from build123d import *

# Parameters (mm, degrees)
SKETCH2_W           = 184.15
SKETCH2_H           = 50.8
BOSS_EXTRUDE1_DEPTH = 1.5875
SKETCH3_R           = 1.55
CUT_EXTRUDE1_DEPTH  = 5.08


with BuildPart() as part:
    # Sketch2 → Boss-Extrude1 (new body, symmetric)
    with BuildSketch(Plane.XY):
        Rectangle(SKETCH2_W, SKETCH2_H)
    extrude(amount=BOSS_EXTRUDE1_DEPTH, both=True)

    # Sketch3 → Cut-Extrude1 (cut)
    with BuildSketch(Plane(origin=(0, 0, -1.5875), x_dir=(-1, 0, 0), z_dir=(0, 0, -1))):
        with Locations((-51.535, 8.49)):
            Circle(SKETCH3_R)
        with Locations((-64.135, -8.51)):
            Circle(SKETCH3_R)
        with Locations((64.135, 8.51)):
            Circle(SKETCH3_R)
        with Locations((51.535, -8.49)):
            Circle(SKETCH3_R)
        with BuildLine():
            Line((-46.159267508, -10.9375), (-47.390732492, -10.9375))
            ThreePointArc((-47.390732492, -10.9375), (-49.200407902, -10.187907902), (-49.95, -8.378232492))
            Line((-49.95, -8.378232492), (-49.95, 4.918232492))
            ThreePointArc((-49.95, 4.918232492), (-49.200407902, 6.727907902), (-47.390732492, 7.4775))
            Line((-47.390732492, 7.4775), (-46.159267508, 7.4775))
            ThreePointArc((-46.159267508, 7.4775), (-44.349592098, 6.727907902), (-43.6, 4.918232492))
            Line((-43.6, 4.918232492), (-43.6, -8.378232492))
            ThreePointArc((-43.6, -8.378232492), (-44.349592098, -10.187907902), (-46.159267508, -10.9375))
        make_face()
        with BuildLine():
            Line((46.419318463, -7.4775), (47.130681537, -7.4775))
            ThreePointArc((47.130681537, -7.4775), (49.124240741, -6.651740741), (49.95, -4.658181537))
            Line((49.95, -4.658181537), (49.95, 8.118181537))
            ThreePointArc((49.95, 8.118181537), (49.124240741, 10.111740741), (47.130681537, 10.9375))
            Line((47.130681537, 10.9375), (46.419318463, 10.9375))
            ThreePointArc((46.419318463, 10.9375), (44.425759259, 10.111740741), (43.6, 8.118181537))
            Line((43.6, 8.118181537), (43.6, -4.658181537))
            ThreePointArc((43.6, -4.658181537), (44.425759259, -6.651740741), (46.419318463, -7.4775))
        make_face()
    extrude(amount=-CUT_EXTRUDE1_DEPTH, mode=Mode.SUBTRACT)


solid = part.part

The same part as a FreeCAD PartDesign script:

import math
import FreeCAD as App
import Part
import Sketcher
Q = App.Units.Quantity


def add_polygon(sketch, points):
    """Adds a closed chain of lines whose ends are joined by coincident constraints."""
    first, n = sketch.GeometryCount, len(points)
    for a, b in zip(points, points[1:] + points[:1]):
        sketch.addGeometry(Part.LineSegment(App.Vector(*a, 0), App.Vector(*b, 0)), False)
    for i in range(n):
        sketch.addConstraint(Sketcher.Constraint("Coincident", first + i, 2, first + (i + 1) % n, 1))

doc = App.newDocument("Part")
body = doc.addObject("PartDesign::Body", "Body")

# Sketch on XY plane
sketch1 = doc.addObject("Sketcher::SketchObject", "Sketch")
body.addObject(sketch1)
sketch1.AttachmentSupport = (doc.XY_Plane, [""])
sketch1.MapMode = "FlatFace"
add_polygon(sketch1, [(-92, 25), (-92, -25), (92, -25), (92, 25)])  # lines 0-3
sketch1.addConstraint([
    Sketcher.Constraint("Vertical", 0),
    Sketcher.Constraint("Horizontal", 1),
    Sketcher.Constraint("Vertical", 2),
    Sketcher.Constraint("Horizontal", 3),
    Sketcher.Constraint("Symmetric", 0, 2, 2, 2, -1, 1),
    Sketcher.Constraint("DistanceY", 0, 2, 0, 1, Q("2 in")),
    Sketcher.Constraint("DistanceX", 1, 1, 1, 2, Q("7.25 in")),
])
pad1 = doc.addObject("PartDesign::Pad", "Pad")
body.addObject(pad1)
pad1.Profile = sketch1
pad1.Length = Q("0.125 in")
pad1.Midplane = True

# Sketch on XY plane
sketch2 = doc.addObject("Sketcher::SketchObject", "Sketch001")
body.addObject(sketch2)
sketch2.AttachmentSupport = (doc.XY_Plane, [""])
sketch2.MapMode = "FlatFace"
sketch2.AttachmentOffset = App.Placement(App.Vector(0, 0, -0.0625 * 25.4), App.Rotation())
sketch2.addGeometry([
    Part.Circle(App.Vector(51.5, 8.5, 0), App.Vector(0, 0, 1), 1.6),  # 0
    Part.Circle(App.Vector(64.1, -8.5, 0), App.Vector(0, 0, 1), 1.6),  # 1
    Part.Circle(App.Vector(-64.1, 8.5, 0), App.Vector(0, 0, 1), 1.6),  # 2
    Part.Circle(App.Vector(-51.5, -8.5, 0), App.Vector(0, 0, 1), 1.6),  # 3
    Part.LineSegment(App.Vector(47.4, -10.9, 0), App.Vector(46.2, -10.9, 0)),  # 4
    Part.ArcOfCircle(Part.Circle(App.Vector(46.2, -8.4, 0), App.Vector(0, 0, 1), 2.6), math.radians(180), math.radians(270)),  # 5
    Part.LineSegment(App.Vector(43.6, -8.4, 0), App.Vector(43.6, 4.9, 0)),  # 6
    Part.ArcOfCircle(Part.Circle(App.Vector(46.2, 4.9, 0), App.Vector(0, 0, 1), 2.6), math.radians(90), math.radians(180)),  # 7
    Part.LineSegment(App.Vector(46.2, 7.5, 0), App.Vector(47.4, 7.5, 0)),  # 8
    Part.ArcOfCircle(Part.Circle(App.Vector(47.4, 4.9, 0), App.Vector(0, 0, 1), 2.6), math.radians(0), math.radians(90)),  # 9
    Part.LineSegment(App.Vector(50, 4.9, 0), App.Vector(50, -8.4, 0)),  # 10
    Part.ArcOfCircle(Part.Circle(App.Vector(47.4, -8.4, 0), App.Vector(0, 0, 1), 2.6), math.radians(-90), math.radians(0)),  # 11
    Part.LineSegment(App.Vector(-46.4, -7.5, 0), App.Vector(-47.1, -7.5, 0)),  # 12
    Part.ArcOfCircle(Part.Circle(App.Vector(-47.1, -4.7, 0), App.Vector(0, 0, 1), 2.8), math.radians(180), math.radians(270)),  # 13
    Part.LineSegment(App.Vector(-50, -4.7, 0), App.Vector(-50, 8.1, 0)),  # 14
    Part.ArcOfCircle(Part.Circle(App.Vector(-47.1, 8.1, 0), App.Vector(0, 0, 1), 2.8), math.radians(90), math.radians(180)),  # 15
    Part.LineSegment(App.Vector(-47.1, 10.9, 0), App.Vector(-46.4, 10.9, 0)),  # 16
    Part.ArcOfCircle(Part.Circle(App.Vector(-46.4, 8.1, 0), App.Vector(0, 0, 1), 2.8), math.radians(0), math.radians(90)),  # 17
    Part.LineSegment(App.Vector(-43.6, 8.1, 0), App.Vector(-43.6, -4.7, 0)),  # 18
    Part.ArcOfCircle(Part.Circle(App.Vector(-46.4, -4.7, 0), App.Vector(0, 0, 1), 2.8), math.radians(-90), math.radians(0)),  # 19
], False)
sketch2.addConstraint([
    Sketcher.Constraint("Tangent", 4, 2, 5, 2),
    Sketcher.Constraint("Tangent", 5, 1, 6, 1),
    Sketcher.Constraint("Tangent", 6, 2, 7, 2),
    Sketcher.Constraint("Tangent", 7, 1, 8, 1),
    Sketcher.Constraint("Tangent", 8, 2, 9, 2),
    Sketcher.Constraint("Tangent", 9, 1, 10, 1),
    Sketcher.Constraint("Tangent", 10, 2, 11, 2),
    Sketcher.Constraint("Tangent", 11, 1, 4, 1),
    Sketcher.Constraint("Tangent", 12, 2, 13, 2),
    Sketcher.Constraint("Tangent", 13, 1, 14, 1),
    Sketcher.Constraint("Tangent", 14, 2, 15, 2),
    Sketcher.Constraint("Tangent", 15, 1, 16, 1),
    Sketcher.Constraint("Tangent", 16, 2, 17, 2),
    Sketcher.Constraint("Tangent", 17, 1, 18, 1),
    Sketcher.Constraint("Tangent", 18, 2, 19, 2),
    Sketcher.Constraint("Tangent", 19, 1, 12, 1),
    Sketcher.Constraint("Horizontal", 4),
    Sketcher.Constraint("Vertical", 6),
    Sketcher.Constraint("Horizontal", 8),
    Sketcher.Constraint("Vertical", 10),
    Sketcher.Constraint("Horizontal", 12),
    Sketcher.Constraint("Vertical", 14),
    Sketcher.Constraint("Horizontal", 16),
    Sketcher.Constraint("Vertical", 18),
    Sketcher.Constraint("Equal", 0, 1),
    Sketcher.Constraint("Equal", 1, 2),
    Sketcher.Constraint("Equal", 2, 3),
    Sketcher.Constraint("Equal", 5, 7),
    Sketcher.Constraint("Equal", 7, 9),
    Sketcher.Constraint("Equal", 9, 11),
    Sketcher.Constraint("Equal", 13, 15),
    Sketcher.Constraint("Equal", 15, 17),
    Sketcher.Constraint("Equal", 17, 19),
    Sketcher.Constraint("Symmetric", 1, 3, 2, 3, -1, 1),
    Sketcher.Constraint("Symmetric", 0, 3, 3, 3, -1, 1),
    Sketcher.Constraint("Diameter", 0, Q("3.1 mm")),
    Sketcher.Constraint("DistanceX", 2, 3, 1, 3, Q("5.05 in")),
    Sketcher.Constraint("DistanceX", 5, 1, 10, 2, Q("0.25 in")),
    Sketcher.Constraint("DistanceX", 14, 2, 17, 1, Q("0.25 in")),
    Sketcher.Constraint("Radius", 13, Q("2.819318 mm")),
    Sketcher.Constraint("Radius", 5, Q("2.559268 mm")),
    Sketcher.Constraint("DistanceX", -1, 1, 0, 3, Q("51.535 mm")),
    Sketcher.Constraint("DistanceY", -1, 1, 0, 3, Q("8.49 mm")),
    Sketcher.Constraint("DistanceY", 1, 3, -1, 1, Q("8.51 mm")),
    Sketcher.Constraint("DistanceY", 4, 2, -1, 1, Q("10.9375 mm")),
    Sketcher.Constraint("DistanceX", -1, 1, 5, 1, Q("43.6 mm")),
    Sketcher.Constraint("DistanceY", -1, 1, 7, 1, Q("7.4775 mm")),
    Sketcher.Constraint("DistanceY", 12, 2, -1, 1, Q("7.4775 mm")),
    Sketcher.Constraint("DistanceX", 13, 1, -1, 1, Q("49.95 mm")),
    Sketcher.Constraint("DistanceY", -1, 1, 15, 1, Q("10.9375 mm")),
])
pocket1 = doc.addObject("PartDesign::Pocket", "Pocket")
body.addObject(pocket1)
pocket1.Profile = sketch2
pocket1.Length = Q("0.2 in")
pocket1.Reversed = True

doc.recompute()
